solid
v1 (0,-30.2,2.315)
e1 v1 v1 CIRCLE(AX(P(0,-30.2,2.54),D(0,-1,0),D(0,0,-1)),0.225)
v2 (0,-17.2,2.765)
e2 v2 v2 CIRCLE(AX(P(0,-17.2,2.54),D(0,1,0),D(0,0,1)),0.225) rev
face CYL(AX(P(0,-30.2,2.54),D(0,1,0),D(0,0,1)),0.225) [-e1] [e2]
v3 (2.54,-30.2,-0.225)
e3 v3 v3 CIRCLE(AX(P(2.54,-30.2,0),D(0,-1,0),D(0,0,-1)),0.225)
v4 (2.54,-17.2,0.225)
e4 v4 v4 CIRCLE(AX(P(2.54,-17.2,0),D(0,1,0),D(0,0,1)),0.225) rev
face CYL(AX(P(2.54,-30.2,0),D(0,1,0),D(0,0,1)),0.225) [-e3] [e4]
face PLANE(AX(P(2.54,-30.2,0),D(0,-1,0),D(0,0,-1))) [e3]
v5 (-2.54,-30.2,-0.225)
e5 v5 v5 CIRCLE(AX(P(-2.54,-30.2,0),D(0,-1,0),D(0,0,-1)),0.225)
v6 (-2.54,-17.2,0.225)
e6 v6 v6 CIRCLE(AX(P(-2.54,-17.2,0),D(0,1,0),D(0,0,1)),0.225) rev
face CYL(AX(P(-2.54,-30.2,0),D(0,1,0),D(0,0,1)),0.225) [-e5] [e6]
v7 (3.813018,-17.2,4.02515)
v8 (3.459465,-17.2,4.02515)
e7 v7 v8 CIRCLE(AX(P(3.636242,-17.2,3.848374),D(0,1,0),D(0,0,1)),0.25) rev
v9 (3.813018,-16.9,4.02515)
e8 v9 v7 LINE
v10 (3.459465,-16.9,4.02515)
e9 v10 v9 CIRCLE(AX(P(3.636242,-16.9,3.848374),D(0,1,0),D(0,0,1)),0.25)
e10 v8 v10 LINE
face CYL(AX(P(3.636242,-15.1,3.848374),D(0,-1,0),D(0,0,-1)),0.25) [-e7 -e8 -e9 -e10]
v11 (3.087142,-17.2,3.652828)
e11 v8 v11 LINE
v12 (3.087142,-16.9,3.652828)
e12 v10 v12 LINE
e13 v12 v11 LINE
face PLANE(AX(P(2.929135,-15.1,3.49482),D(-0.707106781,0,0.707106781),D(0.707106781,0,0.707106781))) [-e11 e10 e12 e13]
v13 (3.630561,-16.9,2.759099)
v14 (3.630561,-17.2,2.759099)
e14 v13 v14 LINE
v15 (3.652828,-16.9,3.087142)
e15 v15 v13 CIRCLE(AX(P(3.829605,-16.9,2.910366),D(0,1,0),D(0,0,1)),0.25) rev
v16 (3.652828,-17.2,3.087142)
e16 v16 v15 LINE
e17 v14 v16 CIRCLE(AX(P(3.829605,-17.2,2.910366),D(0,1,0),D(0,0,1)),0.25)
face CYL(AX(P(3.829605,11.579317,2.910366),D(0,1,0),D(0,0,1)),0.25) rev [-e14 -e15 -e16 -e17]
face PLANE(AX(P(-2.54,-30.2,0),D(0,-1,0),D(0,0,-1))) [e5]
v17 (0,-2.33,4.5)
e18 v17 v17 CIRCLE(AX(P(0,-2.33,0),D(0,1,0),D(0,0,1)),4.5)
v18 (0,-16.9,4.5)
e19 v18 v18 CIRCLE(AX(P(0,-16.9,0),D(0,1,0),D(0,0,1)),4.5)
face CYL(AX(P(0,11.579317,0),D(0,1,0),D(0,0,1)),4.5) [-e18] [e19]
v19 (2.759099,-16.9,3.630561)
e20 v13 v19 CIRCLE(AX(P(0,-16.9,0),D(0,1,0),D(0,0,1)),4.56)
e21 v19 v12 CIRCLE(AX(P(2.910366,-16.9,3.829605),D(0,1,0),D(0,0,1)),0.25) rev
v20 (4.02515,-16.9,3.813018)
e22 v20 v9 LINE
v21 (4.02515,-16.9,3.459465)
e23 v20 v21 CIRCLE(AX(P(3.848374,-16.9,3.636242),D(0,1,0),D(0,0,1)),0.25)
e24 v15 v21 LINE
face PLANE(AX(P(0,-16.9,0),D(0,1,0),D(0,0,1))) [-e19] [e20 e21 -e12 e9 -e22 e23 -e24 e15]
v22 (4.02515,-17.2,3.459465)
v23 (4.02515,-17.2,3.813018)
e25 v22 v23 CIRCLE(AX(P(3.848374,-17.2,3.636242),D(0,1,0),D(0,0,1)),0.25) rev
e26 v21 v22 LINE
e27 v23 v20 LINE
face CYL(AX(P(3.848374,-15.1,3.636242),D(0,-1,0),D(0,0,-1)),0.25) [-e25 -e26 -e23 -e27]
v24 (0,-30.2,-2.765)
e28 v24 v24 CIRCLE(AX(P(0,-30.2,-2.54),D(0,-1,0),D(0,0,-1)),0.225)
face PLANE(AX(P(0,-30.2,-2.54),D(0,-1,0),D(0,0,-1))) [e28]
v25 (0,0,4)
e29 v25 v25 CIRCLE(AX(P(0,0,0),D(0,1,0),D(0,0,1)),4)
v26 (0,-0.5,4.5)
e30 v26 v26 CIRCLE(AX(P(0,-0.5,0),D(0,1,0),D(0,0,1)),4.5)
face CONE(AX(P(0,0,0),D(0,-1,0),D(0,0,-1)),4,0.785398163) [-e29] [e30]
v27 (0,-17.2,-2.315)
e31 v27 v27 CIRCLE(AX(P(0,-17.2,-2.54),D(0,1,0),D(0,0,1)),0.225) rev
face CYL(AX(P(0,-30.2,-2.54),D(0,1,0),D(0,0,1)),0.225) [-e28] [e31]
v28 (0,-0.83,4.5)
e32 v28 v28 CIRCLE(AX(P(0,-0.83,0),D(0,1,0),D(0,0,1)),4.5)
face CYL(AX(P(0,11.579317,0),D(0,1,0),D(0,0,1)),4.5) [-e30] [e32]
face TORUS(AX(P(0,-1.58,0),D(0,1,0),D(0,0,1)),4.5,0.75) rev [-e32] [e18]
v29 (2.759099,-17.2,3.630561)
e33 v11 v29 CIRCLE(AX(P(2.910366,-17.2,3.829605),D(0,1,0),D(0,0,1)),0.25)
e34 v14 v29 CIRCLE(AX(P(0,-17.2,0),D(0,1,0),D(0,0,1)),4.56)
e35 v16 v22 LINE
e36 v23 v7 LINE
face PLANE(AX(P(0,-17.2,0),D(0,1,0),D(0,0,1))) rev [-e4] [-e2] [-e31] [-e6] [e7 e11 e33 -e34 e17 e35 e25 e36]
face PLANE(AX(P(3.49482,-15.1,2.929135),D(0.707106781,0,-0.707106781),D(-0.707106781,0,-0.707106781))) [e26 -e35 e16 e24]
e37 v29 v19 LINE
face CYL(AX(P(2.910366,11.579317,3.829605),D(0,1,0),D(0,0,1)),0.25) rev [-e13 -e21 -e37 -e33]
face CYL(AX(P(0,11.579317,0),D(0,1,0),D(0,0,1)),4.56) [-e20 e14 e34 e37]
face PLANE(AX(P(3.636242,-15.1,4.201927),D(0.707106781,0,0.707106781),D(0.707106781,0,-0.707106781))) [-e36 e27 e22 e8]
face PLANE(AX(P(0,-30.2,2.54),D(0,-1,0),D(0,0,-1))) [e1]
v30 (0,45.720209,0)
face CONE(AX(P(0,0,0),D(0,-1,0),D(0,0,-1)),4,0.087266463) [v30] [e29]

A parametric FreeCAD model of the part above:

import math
import FreeCAD as App
import Part
import Sketcher
from FreeCAD import Vector
Q = App.Units.Quantity


def edges_at(feature, points):
    """Names of the edges that pass closest to the given points."""
    edges = feature.Shape.Edges
    near = lambda p: min(range(len(edges)), key=lambda i: edges[i].distToShape(Part.Vertex(*p))[0])
    return sorted({f"Edge{near(p) + 1}" for p in points})


def add_polygon(sketch, points):
    """Adds a closed chain of lines whose ends are joined by coincident constraints."""
    first, n = sketch.GeometryCount, len(points)
    for a, b in zip(points, points[1:] + points[:1]):
        sketch.addGeometry(Part.LineSegment(App.Vector(*a, 0), App.Vector(*b, 0)), False)
    for i in range(n):
        sketch.addConstraint(Sketcher.Constraint("Coincident", first + i, 2, first + (i + 1) % n, 1))

doc = App.newDocument("Part")
params = doc.addObject("Spreadsheet::Sheet", "Params")
for row, (alias, value) in enumerate([
    ("sketch1_width", "4 mm"),
    ("sketch1_radius", "0.75 mm"),
    ("sketch1_height", "17.2 mm"),
    ("sketch1_height2", "0.3 mm"),
    ("sketch1_width2", "4.56 mm"),
    ("revolution_angle", "360 deg"),
    ("sketch2_diameter", "0.45 mm"),
    ("pad1_length", "13 mm"),
    ("sketch3_radius", "4.56 mm"),
    ("sketch3_length", "1 mm"),
    ("sketch3_length2", "0.8 mm"),
    ("pad2_length", "0.3 mm"),
    ("fillet_radius", "0.25 mm"),
    ("sketch4_width", "4 mm"),
    ("revolution2_angle", "360 deg"),
], start=1):
    params.set(f"A{row}", alias)
    params.set(f"B{row}", "=" + value)
    params.setAlias(f"B{row}", alias)

body = doc.addObject("PartDesign::Body", "Body")

# Sketch on XY plane
sketch1 = body.newObject("Sketcher::SketchObject", "Sketch")
sketch1.AttachmentSupport = (doc.getObject("XY_Plane"), [""])
sketch1.MapMode = "FlatFace"
sketch1.addGeometry(Part.LineSegment(Vector(4.5, -0.5, 0), Vector(4, 0, 0)), False)
sketch1.addGeometry(Part.LineSegment(Vector(4, 0, 0), Vector(0, 0, 0)), False)
sketch1.addGeometry(Part.LineSegment(Vector(0, 0, 0), Vector(0, -17.2, 0)), False)
sketch1.addGeometry(Part.LineSegment(Vector(0, -17.2, 0), Vector(4.56, -17.2, 0)), False)
sketch1.addGeometry(Part.LineSegment(Vector(4.56, -17.2, 0), Vector(4.56, -16.9, 0)), False)
sketch1.addGeometry(Part.LineSegment(Vector(4.56, -16.9, 0), Vector(4.5, -16.9, 0)), False)
sketch1.addGeometry(Part.LineSegment(Vector(4.5, -16.9, 0), Vector(4.5, -2.33, 0)), False)
sketch1.addGeometry(Part.ArcOfCircle(Part.Circle(Vector(4.5, -1.58, 0), Vector(0, 0, 1), 0.75), math.radians(90), math.radians(270)), False)
sketch1.addGeometry(Part.LineSegment(Vector(4.5, -0.83, 0), Vector(4.5, -0.5, 0)), False)
sketch1.addConstraint(Sketcher.Constraint("Coincident", 0, 2, 1, 1))
sketch1.addConstraint(Sketcher.Constraint("Coincident", 1, 2, 2, 1))
sketch1.addConstraint(Sketcher.Constraint("Coincident", 2, 2, 3, 1))
sketch1.addConstraint(Sketcher.Constraint("Coincident", 3, 2, 4, 1))
sketch1.addConstraint(Sketcher.Constraint("Coincident", 4, 2, 5, 1))
sketch1.addConstraint(Sketcher.Constraint("Coincident", 5, 2, 6, 1))
sketch1.addConstraint(Sketcher.Constraint("Coincident", 6, 2, 7, 2))
sketch1.addConstraint(Sketcher.Constraint("Coincident", 7, 1, 8, 1))
sketch1.addConstraint(Sketcher.Constraint("Coincident", 8, 2, 0, 1))
sketch1.addConstraint(Sketcher.Constraint("Horizontal", 1))
sketch1.addConstraint(Sketcher.Constraint("Vertical", 2))
sketch1.addConstraint(Sketcher.Constraint("Horizontal", 3))
sketch1.addConstraint(Sketcher.Constraint("Vertical", 4))
sketch1.addConstraint(Sketcher.Constraint("Horizontal", 5))
sketch1.addConstraint(Sketcher.Constraint("Vertical", 6))
sketch1.addConstraint(Sketcher.Constraint("Vertical", 8))
sketch1.addConstraint(Sketcher.Constraint("Coincident", 1, 2, -1, 1))
sketch1.addConstraint(Sketcher.Constraint("Vertical", 7, 3, 5, 2))
sketch1.addConstraint(Sketcher.Constraint("Vertical", 6, 2, 7, 1))
sketch1.addConstraint(Sketcher.Constraint("DistanceX", 1, 2, 1, 1, 4.0))
sketch1.addConstraint(Sketcher.Constraint("Angle", 0, Q("135 deg")))
sketch1.addConstraint(Sketcher.Constraint("Radius", 7, 0.75))
sketch1.addConstraint(Sketcher.Constraint("DistanceY", 2, 2, 2, 1, 17.2))
sketch1.addConstraint(Sketcher.Constraint("DistanceY", 4, 1, 4, 2, 0.3))
sketch1.addConstraint(Sketcher.Constraint("DistanceX", 3, 1, 3, 2, 4.56))
sketch1.addConstraint(Sketcher.Constraint("DistanceX", 5, 2, 5, 1, 0.06))
sketch1.addConstraint(Sketcher.Constraint("DistanceY", 6, 1, 6, 2, 14.57))
sketch1.setExpression("Constraints[19]", "Params.sketch1_width")
sketch1.setExpression("Constraints[21]", "Params.sketch1_radius")
sketch1.setExpression("Constraints[22]", "Params.sketch1_height")
sketch1.setExpression("Constraints[23]", "Params.sketch1_height2")
sketch1.setExpression("Constraints[24]", "Params.sketch1_width2")
revolution = body.newObject("PartDesign::Revolution", "Revolution")
revolution.Profile = sketch1
revolution.ReferenceAxis = (sketch1, ["V_Axis"])
revolution.setExpression("Angle", "Params.revolution_angle")

# Sketch on XZ plane
sketch2 = body.newObject("Sketcher::SketchObject", "Sketch001")
sketch2.AttachmentSupport = (doc.getObject("XZ_Plane"), [""])
sketch2.MapMode = "FlatFace"
sketch2.AttachmentOffset = App.Placement(Vector(0, 0, 17.2), App.Rotation())
sketch2.addGeometry(Part.Circle(Vector(-2.54, 0, 0), Vector(0, 0, 1), 0.23), False)
sketch2.addGeometry(Part.Circle(Vector(0, 2.54, 0), Vector(0, 0, 1), 0.23), False)
sketch2.addGeometry(Part.Circle(Vector(2.54, 0, 0), Vector(0, 0, 1), 0.23), False)
sketch2.addGeometry(Part.Circle(Vector(0, -2.54, 0), Vector(0, 0, 1), 0.23), False)
sketch2.addConstraint(Sketcher.Constraint("Equal", 0, 1))
sketch2.addConstraint(Sketcher.Constraint("Equal", 1, 2))
sketch2.addConstraint(Sketcher.Constraint("Equal", 2, 3))
sketch2.addConstraint(Sketcher.Constraint("Symmetric", 0, 3, 2, 3, -1, 1))
sketch2.addConstraint(Sketcher.Constraint("Symmetric", 1, 3, 3, 3, -1, 1))
sketch2.addConstraint(Sketcher.Constraint("PointOnObject", 0, 3, -1))
sketch2.addConstraint(Sketcher.Constraint("PointOnObject", 1, 3, -2))
sketch2.addConstraint(Sketcher.Constraint("Diameter", 0, 0.45))
sketch2.addConstraint(Sketcher.Constraint("DistanceX", 0, 3, -1, 1, 2.54))
sketch2.addConstraint(Sketcher.Constraint("DistanceY", -1, 1, 1, 3, 2.54))
sketch2.setExpression("Constraints[7]", "Params.sketch2_diameter")
pad1 = body.newObject("PartDesign::Pad", "Pad")
pad1.Profile = sketch2
pad1.setExpression("Length", "Params.pad1_length")

# Sketch on XZ plane
sketch3 = body.newObject("Sketcher::SketchObject", "Sketch002")
sketch3.AttachmentSupport = (doc.getObject("XZ_Plane"), [""])
sketch3.MapMode = "FlatFace"
sketch3.AttachmentOffset = App.Placement(Vector(0, 0, 17.2), App.Rotation())
sketch3.addGeometry(Part.LineSegment(Vector(3.6, 4.2, 0), Vector(2.9, 3.5, 0)), False)
sketch3.addGeometry(Part.ArcOfCircle(Part.Circle(Vector(0, 0, 0), Vector(0, 0, 1), 4.6), math.radians(39.97), math.radians(50.03)), False)
sketch3.addGeometry(Part.LineSegment(Vector(3.5, 2.9, 0), Vector(4.2, 3.6, 0)), False)
sketch3.addGeometry(Part.LineSegment(Vector(4.2, 3.6, 0), Vector(3.6, 4.2, 0)), False)
sketch3.addConstraint(Sketcher.Constraint("Coincident", 0, 2, 1, 2))
sketch3.addConstraint(Sketcher.Constraint("Coincident", 1, 1, 2, 1))
sketch3.addConstraint(Sketcher.Constraint("Coincident", 2, 2, 3, 1))
sketch3.addConstraint(Sketcher.Constraint("Coincident", 3, 2, 0, 1))
sketch3.addConstraint(Sketcher.Constraint("Coincident", 1, 3, -1, 1))
sketch3.addConstraint(Sketcher.Constraint("Parallel", 0, 2))
sketch3.addConstraint(Sketcher.Constraint("Perpendicular", 2, 3))
sketch3.addConstraint(Sketcher.Constraint("Equal", 0, 2))
sketch3.addConstraint(Sketcher.Constraint("Angle", 0, Q("-135 deg")))
sketch3.addConstraint(Sketcher.Constraint("Radius", 1, 4.56))
sketch3.addConstraint(Sketcher.Constraint("Distance", 0, 1.0))
sketch3.addConstraint(Sketcher.Constraint("Distance", 3, 0.8))
sketch3.setExpression("Constraints[9]", "Params.sketch3_radius")
sketch3.setExpression("Constraints[10]", "Params.sketch3_length")
sketch3.setExpression("Constraints[11]", "Params.sketch3_length2")
pad2 = body.newObject("PartDesign::Pad", "Pad001")
pad2.Profile = sketch3
pad2.setExpression("Length", "Params.pad2_length")
pad2.Reversed = True
doc.recompute()

fillet = body.newObject("PartDesign::Fillet", "Fillet")
fillet.Base = (pad2, edges_at(pad2, [
    (4.202, -17.05, 3.636),
    (3.636, -17.05, 4.202),
    (2.929, -17.05, 3.495),
    (3.495, -17.05, 2.929),
]))
fillet.setExpression("Radius", "Params.fillet_radius")

# Sketch on XY plane
sketch4 = body.newObject("Sketcher::SketchObject", "Sketch003")
sketch4.AttachmentSupport = (doc.getObject("XY_Plane"), [""])
sketch4.MapMode = "FlatFace"
add_polygon(sketch4, [(0, 45.7), (0, 0), (4, 0)])  # lines 0-2
sketch4.addConstraint(Sketcher.Constraint("Vertical", 0))
sketch4.addConstraint(Sketcher.Constraint("Horizontal", 1))
sketch4.addConstraint(Sketcher.Constraint("Coincident", 0, 2, -1, 1))
sketch4.addConstraint(Sketcher.Constraint("DistanceX", 1, 1, 1, 2, 4.0))
sketch4.addConstraint(Sketcher.Constraint("Angle", 2, Q("95 deg")))
sketch4.setExpression("Constraints[6]", "Params.sketch4_width")
revolution2 = body.newObject("PartDesign::Revolution", "Revolution001")
revolution2.Profile = sketch4
revolution2.ReferenceAxis = (sketch4, ["V_Axis"])
revolution2.setExpression("Angle", "Params.revolution2_angle")

doc.recompute()
